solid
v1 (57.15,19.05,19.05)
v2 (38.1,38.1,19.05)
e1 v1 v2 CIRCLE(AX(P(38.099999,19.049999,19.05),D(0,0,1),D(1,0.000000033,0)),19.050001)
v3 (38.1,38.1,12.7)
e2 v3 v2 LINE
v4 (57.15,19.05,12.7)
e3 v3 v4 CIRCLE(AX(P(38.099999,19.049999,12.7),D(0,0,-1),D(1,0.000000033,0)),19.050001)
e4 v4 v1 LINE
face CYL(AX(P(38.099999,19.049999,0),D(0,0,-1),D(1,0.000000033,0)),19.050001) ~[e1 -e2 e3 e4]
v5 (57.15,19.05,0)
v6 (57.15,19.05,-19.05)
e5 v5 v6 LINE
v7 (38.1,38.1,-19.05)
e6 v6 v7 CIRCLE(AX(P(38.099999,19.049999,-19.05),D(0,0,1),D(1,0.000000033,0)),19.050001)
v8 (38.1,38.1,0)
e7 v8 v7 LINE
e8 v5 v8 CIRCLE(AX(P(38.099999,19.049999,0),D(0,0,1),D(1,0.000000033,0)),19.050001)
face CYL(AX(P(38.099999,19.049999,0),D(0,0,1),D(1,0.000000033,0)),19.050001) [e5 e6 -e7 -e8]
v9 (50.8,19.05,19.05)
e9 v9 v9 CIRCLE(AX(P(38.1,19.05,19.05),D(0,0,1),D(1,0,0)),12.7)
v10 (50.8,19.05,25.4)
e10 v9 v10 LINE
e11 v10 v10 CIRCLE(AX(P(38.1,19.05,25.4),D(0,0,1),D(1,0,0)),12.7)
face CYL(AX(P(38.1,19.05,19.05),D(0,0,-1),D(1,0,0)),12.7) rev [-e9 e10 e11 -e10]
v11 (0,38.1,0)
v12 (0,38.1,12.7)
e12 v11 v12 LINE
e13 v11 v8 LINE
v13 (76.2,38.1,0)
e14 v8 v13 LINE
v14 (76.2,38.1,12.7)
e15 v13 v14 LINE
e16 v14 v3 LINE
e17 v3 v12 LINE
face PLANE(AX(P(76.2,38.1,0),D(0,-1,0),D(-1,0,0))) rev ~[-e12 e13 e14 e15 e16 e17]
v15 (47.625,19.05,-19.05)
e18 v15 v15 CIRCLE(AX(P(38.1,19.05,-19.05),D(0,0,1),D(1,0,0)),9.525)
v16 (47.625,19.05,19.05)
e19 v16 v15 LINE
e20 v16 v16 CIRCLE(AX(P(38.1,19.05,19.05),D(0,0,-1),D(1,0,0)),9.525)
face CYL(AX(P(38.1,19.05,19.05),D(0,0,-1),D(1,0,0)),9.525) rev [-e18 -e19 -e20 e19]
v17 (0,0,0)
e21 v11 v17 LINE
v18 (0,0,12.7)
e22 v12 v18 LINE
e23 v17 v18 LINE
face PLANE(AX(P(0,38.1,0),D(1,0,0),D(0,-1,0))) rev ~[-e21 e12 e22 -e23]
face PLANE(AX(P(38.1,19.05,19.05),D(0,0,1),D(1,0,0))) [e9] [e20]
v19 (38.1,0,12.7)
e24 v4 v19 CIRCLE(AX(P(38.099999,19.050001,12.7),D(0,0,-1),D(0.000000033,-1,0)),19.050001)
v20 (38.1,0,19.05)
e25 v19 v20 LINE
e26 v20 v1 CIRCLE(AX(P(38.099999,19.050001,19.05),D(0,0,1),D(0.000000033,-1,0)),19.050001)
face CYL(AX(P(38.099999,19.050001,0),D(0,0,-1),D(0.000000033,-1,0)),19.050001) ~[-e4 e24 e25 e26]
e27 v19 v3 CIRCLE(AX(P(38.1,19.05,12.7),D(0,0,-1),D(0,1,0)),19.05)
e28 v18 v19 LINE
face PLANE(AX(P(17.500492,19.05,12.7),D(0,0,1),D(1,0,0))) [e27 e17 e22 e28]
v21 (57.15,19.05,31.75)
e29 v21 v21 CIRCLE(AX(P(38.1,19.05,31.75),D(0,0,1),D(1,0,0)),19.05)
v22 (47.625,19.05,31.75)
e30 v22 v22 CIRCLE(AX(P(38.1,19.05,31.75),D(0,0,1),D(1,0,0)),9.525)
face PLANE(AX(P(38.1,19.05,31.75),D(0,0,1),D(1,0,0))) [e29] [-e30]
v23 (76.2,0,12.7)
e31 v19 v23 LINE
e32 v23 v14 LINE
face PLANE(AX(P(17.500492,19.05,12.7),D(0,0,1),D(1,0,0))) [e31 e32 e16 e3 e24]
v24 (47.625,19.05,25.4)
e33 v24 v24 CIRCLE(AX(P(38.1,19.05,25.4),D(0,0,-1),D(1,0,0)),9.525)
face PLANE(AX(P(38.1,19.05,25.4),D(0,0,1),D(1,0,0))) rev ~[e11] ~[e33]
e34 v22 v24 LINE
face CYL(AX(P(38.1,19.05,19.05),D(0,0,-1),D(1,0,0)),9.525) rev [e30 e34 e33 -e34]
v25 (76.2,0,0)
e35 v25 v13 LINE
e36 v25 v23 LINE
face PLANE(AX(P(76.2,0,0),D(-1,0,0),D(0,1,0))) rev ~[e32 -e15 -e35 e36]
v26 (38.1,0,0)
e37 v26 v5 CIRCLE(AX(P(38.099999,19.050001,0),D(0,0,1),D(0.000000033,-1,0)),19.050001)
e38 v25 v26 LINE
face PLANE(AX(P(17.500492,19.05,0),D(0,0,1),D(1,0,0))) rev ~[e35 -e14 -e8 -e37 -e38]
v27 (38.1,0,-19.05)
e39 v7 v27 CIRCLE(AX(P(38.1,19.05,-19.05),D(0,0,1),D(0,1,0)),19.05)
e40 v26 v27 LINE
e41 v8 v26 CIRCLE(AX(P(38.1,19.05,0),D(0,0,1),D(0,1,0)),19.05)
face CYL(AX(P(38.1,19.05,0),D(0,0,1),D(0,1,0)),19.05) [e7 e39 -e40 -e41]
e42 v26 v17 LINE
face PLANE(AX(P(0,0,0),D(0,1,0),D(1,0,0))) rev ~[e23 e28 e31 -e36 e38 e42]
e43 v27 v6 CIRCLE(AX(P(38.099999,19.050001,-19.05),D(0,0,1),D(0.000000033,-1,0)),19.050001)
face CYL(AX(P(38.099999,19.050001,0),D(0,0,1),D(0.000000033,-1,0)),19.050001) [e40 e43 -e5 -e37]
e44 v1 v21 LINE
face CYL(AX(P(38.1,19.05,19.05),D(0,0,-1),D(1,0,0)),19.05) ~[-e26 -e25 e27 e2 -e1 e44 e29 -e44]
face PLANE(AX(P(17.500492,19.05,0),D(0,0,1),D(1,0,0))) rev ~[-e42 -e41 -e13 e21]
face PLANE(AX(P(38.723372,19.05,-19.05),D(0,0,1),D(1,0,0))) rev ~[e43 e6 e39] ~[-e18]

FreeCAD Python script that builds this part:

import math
import FreeCAD as App
import Part
import Sketcher
from FreeCAD import Vector
Q = App.Units.Quantity


def add_polygon(sketch, points):
    """Adds a closed chain of lines whose ends are joined by coincident constraints."""
    first, n = sketch.GeometryCount, len(points)
    for a, b in zip(points, points[1:] + points[:1]):
        sketch.addGeometry(Part.LineSegment(App.Vector(*a, 0), App.Vector(*b, 0)), False)
    for i in range(n):
        sketch.addConstraint(Sketcher.Constraint("Coincident", first + i, 2, first + (i + 1) % n, 1))

doc = App.newDocument("Part")
body = doc.addObject("PartDesign::Body", "Body")

# Sketch on XY plane
sketch1 = doc.addObject("Sketcher::SketchObject", "Sketch")
body.addObject(sketch1)
sketch1.AttachmentSupport = (doc.XY_Plane, [""])
sketch1.MapMode = "FlatFace"
add_polygon(sketch1, [(0, 38), (0, 0), (76, 0), (76, 38)])  # lines 0-3
sketch1.addGeometry(Part.Circle(Vector(38, 19, 0), Vector(0, 0, 1), 10), False)  # 4
sketch1.addConstraint([
    Sketcher.Constraint("Vertical", 0),
    Sketcher.Constraint("Horizontal", 1),
    Sketcher.Constraint("Vertical", 2),
    Sketcher.Constraint("Horizontal", 3),
    Sketcher.Constraint("Coincident", 0, 2, -1, 1),
    Sketcher.Constraint("Diameter", 4, Q("0.75 in")),
    Sketcher.Constraint("DistanceX", 1, 1, 1, 2, Q("3 in")),
    Sketcher.Constraint("DistanceY", 0, 2, 0, 1, Q("1.5 in")),
    Sketcher.Constraint("DistanceX", -1, 1, 4, 3, Q("1.5 in")),
    Sketcher.Constraint("DistanceY", -1, 1, 4, 3, Q("0.75 in")),
])
pad1 = doc.addObject("PartDesign::Pad", "Pad")
body.addObject(pad1)
pad1.Profile = sketch1
pad1.Length = Q("0.5 in")

# Sketch on XY plane
sketch2 = doc.addObject("Sketcher::SketchObject", "Sketch001")
body.addObject(sketch2)
sketch2.AttachmentSupport = (doc.XY_Plane, [""])
sketch2.MapMode = "FlatFace"
sketch2.addGeometry([
    Part.ArcOfCircle(Part.Circle(Vector(38, 19, 0), Vector(0, 0, 1), 19), math.radians(90), math.radians(270)),
    Part.ArcOfCircle(Part.Circle(Vector(38, 19, 0), Vector(0, 0, 1), 19), math.radians(-90), math.radians(0)),
    Part.ArcOfCircle(Part.Circle(Vector(38, 19, 0), Vector(0, 0, 1), 19), math.radians(0), math.radians(90)),
    Part.Circle(Vector(38, 19, 0), Vector(0, 0, 1), 10),
], False)
sketch2.addConstraint([
    Sketcher.Constraint("Tangent", 0, 2, 1, 1),
    Sketcher.Constraint("Tangent", 1, 2, 2, 1),
    Sketcher.Constraint("Tangent", 2, 2, 0, 1),
    Sketcher.Constraint("Coincident", 3, 3, 0, 3),
    Sketcher.Constraint("PointOnObject", 0, 2, -1),
    Sketcher.Constraint("Horizontal", 3, 3, 1, 2),
    Sketcher.Constraint("Vertical", 3, 3, 0, 2),
    Sketcher.Constraint("Vertical", 0, 2, 2, 2),
    Sketcher.Constraint("Diameter", 3, Q("0.75 in")),
    Sketcher.Constraint("Radius", 0, Q("0.75 in")),
    Sketcher.Constraint("DistanceX", -1, 1, 0, 3, Q("1.5 in")),
])
pad2 = doc.addObject("PartDesign::Pad", "Pad001")
body.addObject(pad2)
pad2.Profile = sketch2
pad2.Length = Q("0.75 in")

# Sketch on XY plane
sketch3 = doc.addObject("Sketcher::SketchObject", "Sketch002")
body.addObject(sketch3)
sketch3.AttachmentSupport = (doc.XY_Plane, [""])
sketch3.MapMode = "FlatFace"
sketch3.addGeometry([
    Part.ArcOfCircle(Part.Circle(Vector(38, 19, 0), Vector(0, 0, 1), 19), math.radians(90), math.radians(270)),
    Part.ArcOfCircle(Part.Circle(Vector(38, 19, 0), Vector(0, 0, 1), 19), math.radians(-90), math.radians(0)),
    Part.ArcOfCircle(Part.Circle(Vector(38, 19, 0), Vector(0, 0, 1), 19), math.radians(0), math.radians(90)),
    Part.Circle(Vector(38, 19, 0), Vector(0, 0, 1), 10),
], False)
sketch3.addConstraint([
    Sketcher.Constraint("Tangent", 0, 2, 1, 1),
    Sketcher.Constraint("Tangent", 1, 2, 2, 1),
    Sketcher.Constraint("Tangent", 2, 2, 0, 1),
    Sketcher.Constraint("Coincident", 3, 3, 0, 3),
    Sketcher.Constraint("PointOnObject", 0, 2, -1),
    Sketcher.Constraint("Horizontal", 3, 3, 1, 2),
    Sketcher.Constraint("Vertical", 3, 3, 0, 2),
    Sketcher.Constraint("Vertical", 0, 2, 2, 2),
    Sketcher.Constraint("Diameter", 3, Q("0.75 in")),
    Sketcher.Constraint("Radius", 0, Q("0.75 in")),
    Sketcher.Constraint("DistanceX", -1, 1, 0, 3, Q("1.5 in")),
])
pad3 = doc.addObject("PartDesign::Pad", "Pad002")
body.addObject(pad3)
pad3.Profile = sketch3
pad3.Length = Q("0.75 in")
pad3.Reversed = True

# Sketch on XY plane
sketch4 = doc.addObject("Sketcher::SketchObject", "Sketch003")
body.addObject(sketch4)
sketch4.AttachmentSupport = (doc.XY_Plane, [""])
sketch4.MapMode = "FlatFace"
sketch4.AttachmentOffset = App.Placement(Vector(0, 0, 0.75 * 25.4), App.Rotation())
sketch4.addGeometry([
    Part.Circle(Vector(38, 19, 0), Vector(0, 0, 1), 19),
    Part.Circle(Vector(38, 19, 0), Vector(0, 0, 1), 10),
], False)
sketch4.addConstraint([
    Sketcher.Constraint("Coincident", 1, 3, 0, 3),
    Sketcher.Constraint("Diameter", 0, Q("1.5 in")),
    Sketcher.Constraint("Diameter", 1, Q("0.75 in")),
    Sketcher.Constraint("DistanceX", -1, 1, 0, 3, Q("1.5 in")),
    Sketcher.Constraint("DistanceY", -1, 1, 0, 3, Q("0.75 in")),
])
pad4 = doc.addObject("PartDesign::Pad", "Pad003")
body.addObject(pad4)
pad4.Profile = sketch4
pad4.Length = Q("0.5 in")

# Sketch on XY plane
sketch5 = doc.addObject("Sketcher::SketchObject", "Sketch004")
body.addObject(sketch5)
sketch5.AttachmentSupport = (doc.XY_Plane, [""])
sketch5.MapMode = "FlatFace"
sketch5.AttachmentOffset = App.Placement(Vector(0, 0, 0.75 * 25.4), App.Rotation())
sketch5.addGeometry(Part.Circle(Vector(38, 19, 0), Vector(0, 0, 1), 13), False)
sketch5.addConstraint([
    Sketcher.Constraint("Diameter", 0, Q("1 in")),
    Sketcher.Constraint("DistanceX", -1, 1, 0, 3, Q("1.5 in")),
    Sketcher.Constraint("DistanceY", -1, 1, 0, 3, Q("0.75 in")),
])
pocket1 = doc.addObject("PartDesign::Pocket", "Pocket")
body.addObject(pocket1)
pocket1.Profile = sketch5
pocket1.Length = Q("0.25 in")
pocket1.Reversed = True

doc.recompute()
